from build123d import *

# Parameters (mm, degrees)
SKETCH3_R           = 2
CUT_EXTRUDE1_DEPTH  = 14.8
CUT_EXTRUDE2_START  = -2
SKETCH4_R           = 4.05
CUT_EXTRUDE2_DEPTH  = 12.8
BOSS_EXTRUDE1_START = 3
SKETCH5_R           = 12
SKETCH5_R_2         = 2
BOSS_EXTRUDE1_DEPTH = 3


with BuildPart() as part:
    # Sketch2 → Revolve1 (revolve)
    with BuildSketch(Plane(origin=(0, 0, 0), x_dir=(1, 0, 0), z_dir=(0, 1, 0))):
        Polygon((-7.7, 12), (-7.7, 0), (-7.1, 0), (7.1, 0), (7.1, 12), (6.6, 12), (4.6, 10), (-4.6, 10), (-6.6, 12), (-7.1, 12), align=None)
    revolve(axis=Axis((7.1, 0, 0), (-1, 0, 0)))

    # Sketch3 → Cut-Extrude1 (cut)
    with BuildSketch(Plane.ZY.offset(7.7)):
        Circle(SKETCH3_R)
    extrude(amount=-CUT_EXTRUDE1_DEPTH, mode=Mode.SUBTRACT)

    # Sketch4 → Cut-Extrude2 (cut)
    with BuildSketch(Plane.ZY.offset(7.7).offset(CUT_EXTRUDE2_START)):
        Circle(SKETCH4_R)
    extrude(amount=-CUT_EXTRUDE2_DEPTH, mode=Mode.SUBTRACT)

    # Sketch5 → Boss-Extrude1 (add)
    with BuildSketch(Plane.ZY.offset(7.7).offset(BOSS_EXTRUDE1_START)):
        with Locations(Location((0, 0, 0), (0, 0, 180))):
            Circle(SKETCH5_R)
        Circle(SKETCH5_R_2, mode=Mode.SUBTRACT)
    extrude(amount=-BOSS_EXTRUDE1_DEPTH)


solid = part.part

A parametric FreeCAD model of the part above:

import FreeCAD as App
import Part
import Sketcher

V = App.Vector

doc = App.newDocument("Part")
params = doc.addObject("Spreadsheet::Sheet", "Params")
for row, (alias, value) in enumerate([
    ("sketch1_height", "12 mm"),
    ("sketch1_width", "14.8 mm"),
    ("sketch1_width2", "0.5 mm"),
    ("sketch1_width3", "9.2 mm"),
    ("sketch1_width4", "1.1 mm"),
    ("revolution_angle", "360 deg"),
    ("sketch2_diameter", "4 mm"),
    ("pocket1_length", "14.8 mm"),
    ("sketch3_diameter", "8.1 mm"),
    ("pocket2_length", "12.8 mm"),
    ("sketch4_diameter", "24 mm"),
    ("sketch4_diameter2", "4 mm"),
    ("pad1_length", "3 mm"),
], start=1):
    params.set(f"A{row}", alias)
    params.set(f"B{row}", "=" + value)
    params.setAlias(f"B{row}", alias)

body = doc.addObject("PartDesign::Body", "Body")

# Sketch on XZ plane
sketch1 = doc.addObject("Sketcher::SketchObject", "Sketch")
body.addObject(sketch1)
sketch1.AttachmentSupport = (doc.XZ_Plane, [""])
sketch1.MapMode = "FlatFace"
sketch1.addGeometry([
    Part.LineSegment(V(-7.7, -12, 0), V(-7.7, 0, 0)),  # 0
    Part.LineSegment(V(-7.7, 0, 0), V(7.1, 0, 0)),  # 1
    Part.LineSegment(V(7.1, 0, 0), V(7.1, -12, 0)),  # 2
    Part.LineSegment(V(7.1, -12, 0), V(6.6, -12, 0)),  # 3
    Part.LineSegment(V(6.6, -12, 0), V(4.6, -10, 0)),  # 4
    Part.LineSegment(V(4.6, -10, 0), V(-4.6, -10, 0)),  # 5
    Part.LineSegment(V(-4.6, -10, 0), V(-6.6, -12, 0)),  # 6
    Part.LineSegment(V(-6.6, -12, 0), V(-7.7, -12, 0)),  # 7
], False)
sketch1.addConstraint([
    Sketcher.Constraint("Coincident", 0, 2, 1, 1),
    Sketcher.Constraint("Coincident", 1, 2, 2, 1),
    Sketcher.Constraint("Coincident", 2, 2, 3, 1),
    Sketcher.Constraint("Coincident", 3, 2, 4, 1),
    Sketcher.Constraint("Coincident", 4, 2, 5, 1),
    Sketcher.Constraint("Coincident", 5, 2, 6, 1),
    Sketcher.Constraint("Coincident", 6, 2, 7, 1),
    Sketcher.Constraint("Coincident", 7, 2, 0, 1),
    Sketcher.Constraint("Vertical", 0),
    Sketcher.Constraint("Horizontal", 1),
    Sketcher.Constraint("Vertical", 2),
    Sketcher.Constraint("Horizontal", 3),
    Sketcher.Constraint("Horizontal", 5),
    Sketcher.Constraint("Horizontal", 7),
    Sketcher.Constraint("Symmetric", 3, 2, 6, 2, -2),
    Sketcher.Constraint("PointOnObject", 0, 2, -1),
    Sketcher.Constraint("Perpendicular", 4, 6),
    Sketcher.Constraint("Equal", 4, 6),
    Sketcher.Constraint("DistanceY", 0, 1, 0, 2, 12.0),
    Sketcher.Constraint("DistanceX", 1, 1, 1, 2, 14.8),
    Sketcher.Constraint("DistanceX", 3, 2, 3, 1, 0.5),
    Sketcher.Constraint("DistanceX", 5, 2, 5, 1, 9.2),
    Sketcher.Constraint("DistanceX", 7, 2, 7, 1, 1.1),
])
sketch1.setExpression("Constraints[18]", "Params.sketch1_height")
sketch1.setExpression("Constraints[19]", "Params.sketch1_width")
sketch1.setExpression("Constraints[20]", "Params.sketch1_width2")
sketch1.setExpression("Constraints[21]", "Params.sketch1_width3")
sketch1.setExpression("Constraints[22]", "Params.sketch1_width4")
revolution = doc.addObject("PartDesign::Revolution", "Revolution")
body.addObject(revolution)
revolution.Profile = sketch1
revolution.ReferenceAxis = (sketch1, ["H_Axis"])
revolution.setExpression("Angle", "Params.revolution_angle")

# Sketch on YZ plane
sketch2 = doc.addObject("Sketcher::SketchObject", "Sketch001")
body.addObject(sketch2)
sketch2.AttachmentSupport = (doc.YZ_Plane, [""])
sketch2.MapMode = "FlatFace"
sketch2.AttachmentOffset = App.Placement(V(0, 0, -7.7), App.Rotation())
sketch2.addGeometry(Part.Circle(V(0, 0, 0), V(0, 0, 1), 2), False)
sketch2.addConstraint([
    Sketcher.Constraint("Coincident", 0, 3, -1, 1),
    Sketcher.Constraint("Diameter", 0, 4.0),
])
sketch2.setExpression("Constraints[1]", "Params.sketch2_diameter")
pocket1 = doc.addObject("PartDesign::Pocket", "Pocket")
body.addObject(pocket1)
pocket1.Profile = sketch2
pocket1.setExpression("Length", "Params.pocket1_length")
pocket1.Reversed = True

# Sketch on YZ plane
sketch3 = doc.addObject("Sketcher::SketchObject", "Sketch002")
body.addObject(sketch3)
sketch3.AttachmentSupport = (doc.YZ_Plane, [""])
sketch3.MapMode = "FlatFace"
sketch3.AttachmentOffset = App.Placement(V(0, 0, -5.7), App.Rotation())
sketch3.addGeometry(Part.Circle(V(0, 0, 0), V(0, 0, 1), 4), False)
sketch3.addConstraint([
    Sketcher.Constraint("Coincident", 0, 3, -1, 1),
    Sketcher.Constraint("Diameter", 0, 8.1),
])
sketch3.setExpression("Constraints[1]", "Params.sketch3_diameter")
pocket2 = doc.addObject("PartDesign::Pocket", "Pocket001")
body.addObject(pocket2)
pocket2.Profile = sketch3
pocket2.setExpression("Length", "Params.pocket2_length")
pocket2.Reversed = True

# Sketch on YZ plane
sketch4 = doc.addObject("Sketcher::SketchObject", "Sketch003")
body.addObject(sketch4)
sketch4.AttachmentSupport = (doc.YZ_Plane, [""])
sketch4.MapMode = "FlatFace"
sketch4.AttachmentOffset = App.Placement(V(0, 0, -10.7), App.Rotation())
sketch4.addGeometry([
    Part.Circle(V(0, 0, 0), V(0, 0, 1), 12),
    Part.Circle(V(0, 0, 0), V(0, 0, 1), 2),
], False)
sketch4.addConstraint([
    Sketcher.Constraint("Coincident", 0, 3, -1, 1),
    Sketcher.Constraint("Coincident", 1, 3, -1, 1),
    Sketcher.Constraint("Diameter", 0, 24.0),
    Sketcher.Constraint("Diameter", 1, 4.0),
])
sketch4.setExpression("Constraints[2]", "Params.sketch4_diameter")
sketch4.setExpression("Constraints[3]", "Params.sketch4_diameter2")
pad1 = doc.addObject("PartDesign::Pad", "Pad")
body.addObject(pad1)
pad1.Profile = sketch4
pad1.setExpression("Length", "Params.pad1_length")

doc.recompute()
